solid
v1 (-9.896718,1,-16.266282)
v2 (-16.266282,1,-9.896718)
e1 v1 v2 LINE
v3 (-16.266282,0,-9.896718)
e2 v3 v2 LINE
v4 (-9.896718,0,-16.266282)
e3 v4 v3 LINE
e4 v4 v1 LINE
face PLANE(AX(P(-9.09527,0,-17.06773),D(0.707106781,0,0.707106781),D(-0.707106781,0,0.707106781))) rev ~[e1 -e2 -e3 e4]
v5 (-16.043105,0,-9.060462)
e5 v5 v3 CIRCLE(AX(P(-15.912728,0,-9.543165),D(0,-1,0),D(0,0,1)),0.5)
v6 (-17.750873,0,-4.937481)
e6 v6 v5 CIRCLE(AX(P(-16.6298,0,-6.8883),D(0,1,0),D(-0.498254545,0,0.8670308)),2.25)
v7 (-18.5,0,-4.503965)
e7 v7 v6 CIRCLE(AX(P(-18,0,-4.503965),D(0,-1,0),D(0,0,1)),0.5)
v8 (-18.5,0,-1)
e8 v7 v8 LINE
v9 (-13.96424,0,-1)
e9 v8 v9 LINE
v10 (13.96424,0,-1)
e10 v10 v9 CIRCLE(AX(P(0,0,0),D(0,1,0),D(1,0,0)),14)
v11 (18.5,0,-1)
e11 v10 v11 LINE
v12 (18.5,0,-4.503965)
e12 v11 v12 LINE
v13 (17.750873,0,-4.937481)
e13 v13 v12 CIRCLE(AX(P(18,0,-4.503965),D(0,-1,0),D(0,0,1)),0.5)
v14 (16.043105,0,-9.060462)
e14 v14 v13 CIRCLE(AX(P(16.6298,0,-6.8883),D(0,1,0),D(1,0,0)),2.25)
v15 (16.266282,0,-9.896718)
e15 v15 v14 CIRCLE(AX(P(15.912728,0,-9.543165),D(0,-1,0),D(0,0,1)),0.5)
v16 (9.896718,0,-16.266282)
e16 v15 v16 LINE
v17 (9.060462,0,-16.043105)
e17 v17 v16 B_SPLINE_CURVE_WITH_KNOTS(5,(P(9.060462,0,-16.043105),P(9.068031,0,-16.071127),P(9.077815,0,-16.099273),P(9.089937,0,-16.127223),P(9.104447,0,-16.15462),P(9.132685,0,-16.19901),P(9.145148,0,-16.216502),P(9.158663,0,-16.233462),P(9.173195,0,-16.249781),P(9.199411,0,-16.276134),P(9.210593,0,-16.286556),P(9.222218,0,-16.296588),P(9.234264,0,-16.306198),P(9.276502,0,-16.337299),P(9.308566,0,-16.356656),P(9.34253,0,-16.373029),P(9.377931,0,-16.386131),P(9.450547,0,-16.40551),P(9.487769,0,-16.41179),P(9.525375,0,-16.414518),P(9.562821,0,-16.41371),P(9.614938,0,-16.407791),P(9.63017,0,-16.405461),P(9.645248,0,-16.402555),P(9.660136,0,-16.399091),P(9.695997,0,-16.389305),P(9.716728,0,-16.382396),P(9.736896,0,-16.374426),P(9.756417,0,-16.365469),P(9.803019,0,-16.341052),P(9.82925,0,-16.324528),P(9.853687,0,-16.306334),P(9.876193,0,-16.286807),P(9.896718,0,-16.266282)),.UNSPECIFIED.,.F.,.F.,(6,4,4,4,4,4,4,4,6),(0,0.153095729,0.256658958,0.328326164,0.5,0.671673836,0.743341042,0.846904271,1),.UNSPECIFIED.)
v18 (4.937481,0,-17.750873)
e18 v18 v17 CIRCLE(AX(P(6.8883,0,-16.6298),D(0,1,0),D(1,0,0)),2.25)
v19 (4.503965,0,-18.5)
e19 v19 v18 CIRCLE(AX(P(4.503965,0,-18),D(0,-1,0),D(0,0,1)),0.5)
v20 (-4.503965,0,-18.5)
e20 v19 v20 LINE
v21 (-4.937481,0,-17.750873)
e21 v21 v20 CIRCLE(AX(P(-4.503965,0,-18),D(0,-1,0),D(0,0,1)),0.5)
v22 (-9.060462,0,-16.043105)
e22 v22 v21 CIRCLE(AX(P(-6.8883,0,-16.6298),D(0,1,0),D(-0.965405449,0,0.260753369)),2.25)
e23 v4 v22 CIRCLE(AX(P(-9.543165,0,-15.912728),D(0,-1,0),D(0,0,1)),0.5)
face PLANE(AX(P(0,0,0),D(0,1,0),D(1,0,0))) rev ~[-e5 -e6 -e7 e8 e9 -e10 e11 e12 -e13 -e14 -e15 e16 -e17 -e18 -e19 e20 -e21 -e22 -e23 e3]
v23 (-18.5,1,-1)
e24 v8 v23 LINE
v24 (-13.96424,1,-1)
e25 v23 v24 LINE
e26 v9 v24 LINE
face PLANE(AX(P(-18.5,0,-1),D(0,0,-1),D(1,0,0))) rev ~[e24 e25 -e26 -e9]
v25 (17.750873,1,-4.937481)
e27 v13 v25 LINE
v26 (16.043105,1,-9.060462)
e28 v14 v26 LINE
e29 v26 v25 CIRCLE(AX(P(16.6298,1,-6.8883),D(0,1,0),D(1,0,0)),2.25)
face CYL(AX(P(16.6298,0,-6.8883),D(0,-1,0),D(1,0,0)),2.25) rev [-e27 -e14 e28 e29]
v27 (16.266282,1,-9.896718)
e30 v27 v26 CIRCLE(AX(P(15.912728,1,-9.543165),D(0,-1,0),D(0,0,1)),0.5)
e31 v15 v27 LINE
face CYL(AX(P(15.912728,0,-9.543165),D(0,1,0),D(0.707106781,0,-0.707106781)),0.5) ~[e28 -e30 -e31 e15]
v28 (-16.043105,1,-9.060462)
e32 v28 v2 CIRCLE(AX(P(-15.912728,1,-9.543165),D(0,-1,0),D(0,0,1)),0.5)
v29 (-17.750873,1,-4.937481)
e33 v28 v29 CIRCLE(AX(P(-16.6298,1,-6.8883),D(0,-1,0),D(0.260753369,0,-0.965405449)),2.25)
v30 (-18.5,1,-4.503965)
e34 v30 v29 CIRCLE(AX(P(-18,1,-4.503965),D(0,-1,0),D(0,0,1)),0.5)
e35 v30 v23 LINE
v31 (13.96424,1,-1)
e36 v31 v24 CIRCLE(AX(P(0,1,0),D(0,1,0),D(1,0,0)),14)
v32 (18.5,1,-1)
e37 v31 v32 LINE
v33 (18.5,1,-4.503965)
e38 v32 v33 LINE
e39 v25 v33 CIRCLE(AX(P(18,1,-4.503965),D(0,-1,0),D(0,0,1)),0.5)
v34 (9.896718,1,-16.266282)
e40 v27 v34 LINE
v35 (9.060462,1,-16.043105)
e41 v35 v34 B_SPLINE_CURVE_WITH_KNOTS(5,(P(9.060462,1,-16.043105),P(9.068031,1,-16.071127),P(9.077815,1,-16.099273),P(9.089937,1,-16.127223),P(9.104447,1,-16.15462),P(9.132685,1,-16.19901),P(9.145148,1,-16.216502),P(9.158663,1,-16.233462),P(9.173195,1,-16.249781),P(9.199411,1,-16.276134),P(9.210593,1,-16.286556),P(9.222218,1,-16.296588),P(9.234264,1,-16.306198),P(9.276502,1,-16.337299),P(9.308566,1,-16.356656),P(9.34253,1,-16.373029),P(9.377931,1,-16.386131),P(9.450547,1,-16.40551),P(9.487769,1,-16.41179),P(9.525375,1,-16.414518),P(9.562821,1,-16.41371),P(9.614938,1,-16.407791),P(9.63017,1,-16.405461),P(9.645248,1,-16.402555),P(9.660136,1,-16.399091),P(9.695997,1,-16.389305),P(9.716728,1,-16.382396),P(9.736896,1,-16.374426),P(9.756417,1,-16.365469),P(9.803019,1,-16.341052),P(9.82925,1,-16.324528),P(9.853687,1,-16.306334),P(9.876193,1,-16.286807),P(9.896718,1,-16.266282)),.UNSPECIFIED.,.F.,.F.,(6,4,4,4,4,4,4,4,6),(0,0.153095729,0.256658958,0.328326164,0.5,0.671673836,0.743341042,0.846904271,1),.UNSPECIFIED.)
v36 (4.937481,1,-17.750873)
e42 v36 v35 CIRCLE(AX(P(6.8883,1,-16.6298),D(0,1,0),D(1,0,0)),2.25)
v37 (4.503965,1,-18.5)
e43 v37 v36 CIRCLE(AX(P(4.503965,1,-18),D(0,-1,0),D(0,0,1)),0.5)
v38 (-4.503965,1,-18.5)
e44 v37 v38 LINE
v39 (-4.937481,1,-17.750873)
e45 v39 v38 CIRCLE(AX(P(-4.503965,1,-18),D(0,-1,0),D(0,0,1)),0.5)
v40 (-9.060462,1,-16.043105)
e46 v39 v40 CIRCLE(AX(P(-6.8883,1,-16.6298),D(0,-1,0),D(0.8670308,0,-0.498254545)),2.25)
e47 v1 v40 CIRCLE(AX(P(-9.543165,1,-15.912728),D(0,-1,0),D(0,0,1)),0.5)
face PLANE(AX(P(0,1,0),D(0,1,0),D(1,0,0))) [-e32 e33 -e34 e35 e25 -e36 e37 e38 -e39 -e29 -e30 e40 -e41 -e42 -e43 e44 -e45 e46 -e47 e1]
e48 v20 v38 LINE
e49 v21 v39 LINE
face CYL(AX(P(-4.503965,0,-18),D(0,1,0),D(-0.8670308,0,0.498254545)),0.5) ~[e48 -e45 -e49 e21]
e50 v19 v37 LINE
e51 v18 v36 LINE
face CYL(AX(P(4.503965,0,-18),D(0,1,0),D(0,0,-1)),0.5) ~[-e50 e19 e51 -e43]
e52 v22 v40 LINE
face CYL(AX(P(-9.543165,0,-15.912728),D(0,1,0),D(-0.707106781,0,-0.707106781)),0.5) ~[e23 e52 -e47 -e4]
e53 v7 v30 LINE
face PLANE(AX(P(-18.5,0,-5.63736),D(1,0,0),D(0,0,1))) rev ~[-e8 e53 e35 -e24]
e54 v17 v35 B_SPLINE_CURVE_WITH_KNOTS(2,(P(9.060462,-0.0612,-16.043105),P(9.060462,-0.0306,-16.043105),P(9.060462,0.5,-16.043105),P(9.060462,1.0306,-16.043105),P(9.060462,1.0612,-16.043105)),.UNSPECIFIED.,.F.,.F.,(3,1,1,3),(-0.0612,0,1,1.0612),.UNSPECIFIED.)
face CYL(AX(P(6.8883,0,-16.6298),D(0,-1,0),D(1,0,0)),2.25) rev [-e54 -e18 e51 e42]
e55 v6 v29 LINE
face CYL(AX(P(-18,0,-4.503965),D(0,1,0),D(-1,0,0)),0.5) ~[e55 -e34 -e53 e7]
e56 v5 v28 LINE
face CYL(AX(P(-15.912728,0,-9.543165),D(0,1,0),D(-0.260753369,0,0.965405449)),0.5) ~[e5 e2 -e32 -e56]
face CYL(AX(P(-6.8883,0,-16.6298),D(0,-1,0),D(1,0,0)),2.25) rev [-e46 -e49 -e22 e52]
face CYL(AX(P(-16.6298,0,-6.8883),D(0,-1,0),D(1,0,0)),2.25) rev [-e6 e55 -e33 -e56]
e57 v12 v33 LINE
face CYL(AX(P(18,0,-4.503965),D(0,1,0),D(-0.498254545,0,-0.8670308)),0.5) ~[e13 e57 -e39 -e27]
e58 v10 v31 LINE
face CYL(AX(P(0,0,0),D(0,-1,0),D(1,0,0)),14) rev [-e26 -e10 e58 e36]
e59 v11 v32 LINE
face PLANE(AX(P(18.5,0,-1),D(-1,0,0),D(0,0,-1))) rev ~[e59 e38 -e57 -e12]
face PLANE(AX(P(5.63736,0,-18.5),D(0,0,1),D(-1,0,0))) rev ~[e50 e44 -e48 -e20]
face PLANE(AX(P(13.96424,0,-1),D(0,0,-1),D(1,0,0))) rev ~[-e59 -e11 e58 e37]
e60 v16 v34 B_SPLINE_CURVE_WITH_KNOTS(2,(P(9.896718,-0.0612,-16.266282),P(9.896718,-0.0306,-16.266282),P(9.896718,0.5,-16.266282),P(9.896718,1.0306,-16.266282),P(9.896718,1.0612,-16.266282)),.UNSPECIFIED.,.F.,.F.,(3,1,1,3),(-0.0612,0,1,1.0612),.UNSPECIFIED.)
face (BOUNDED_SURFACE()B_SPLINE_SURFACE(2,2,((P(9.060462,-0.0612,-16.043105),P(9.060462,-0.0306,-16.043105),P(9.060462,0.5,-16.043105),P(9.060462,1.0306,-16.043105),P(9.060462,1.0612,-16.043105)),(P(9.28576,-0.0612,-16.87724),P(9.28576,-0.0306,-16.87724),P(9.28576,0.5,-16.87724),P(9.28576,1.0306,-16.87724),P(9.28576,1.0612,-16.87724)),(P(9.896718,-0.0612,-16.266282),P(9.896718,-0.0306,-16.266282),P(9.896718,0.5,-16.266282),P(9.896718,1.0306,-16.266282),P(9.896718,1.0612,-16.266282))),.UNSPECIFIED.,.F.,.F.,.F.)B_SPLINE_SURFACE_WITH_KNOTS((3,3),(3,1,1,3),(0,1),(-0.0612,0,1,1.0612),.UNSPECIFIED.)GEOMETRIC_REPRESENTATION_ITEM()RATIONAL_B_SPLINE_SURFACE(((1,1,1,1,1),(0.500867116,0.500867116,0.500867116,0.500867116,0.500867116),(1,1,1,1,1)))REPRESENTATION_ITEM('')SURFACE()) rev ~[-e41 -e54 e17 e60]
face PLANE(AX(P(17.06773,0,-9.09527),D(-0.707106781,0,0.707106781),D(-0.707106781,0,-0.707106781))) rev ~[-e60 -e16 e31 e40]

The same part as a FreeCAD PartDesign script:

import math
import FreeCAD as App
import Part
import Sketcher


def edges_at(feature, points):
    """Names of the edges that pass closest to the given points."""
    edges = feature.Shape.Edges
    near = lambda p: min(range(len(edges)), key=lambda i: edges[i].distToShape(Part.Vertex(*p))[0])
    return sorted({f"Edge{near(p) + 1}" for p in points})

doc = App.newDocument("Part")
body = doc.addObject("PartDesign::Body", "Body")

# Sketch on XZ plane
sketch1 = body.newObject("Sketcher::SketchObject", "Sketch")
sketch1.AttachmentSupport = (doc.getObject("XZ_Plane"), [""])
sketch1.MapMode = "FlatFace"
sketch1.addGeometry([
    Part.ArcOfCircle(Part.Circle(App.Vector(0, 0, 0), App.Vector(0, 0, 1), 14), math.radians(-176), math.radians(-4)),  # 0
    Part.LineSegment(App.Vector(14, -1, 0), App.Vector(18.5, -1, 0)),  # 1
    Part.LineSegment(App.Vector(18.5, -1, 0), App.Vector(18.5, -5.6, 0)),  # 2
    Part.ArcOfCircle(Part.Circle(App.Vector(16.6, -6.9, 0), App.Vector(0, 0, 1), 2.2), math.radians(34), math.radians(281)),  # 3
    Part.LineSegment(App.Vector(17.1, -9.1, 0), App.Vector(9.1, -17.1, 0)),  # 4
    Part.ArcOfCircle(Part.Circle(App.Vector(6.9, -16.6, 0), App.Vector(0, 0, 1), 2.2), math.radians(-11), math.radians(236)),  # 5
    Part.LineSegment(App.Vector(5.6, -18.5, 0), App.Vector(-5.6, -18.5, 0)),  # 6
    Part.ArcOfCircle(Part.Circle(App.Vector(-6.9, -16.6, 0), App.Vector(0, 0, 1), 2.2), math.radians(-56), math.radians(191)),  # 7
    Part.LineSegment(App.Vector(-9.1, -17.1, 0), App.Vector(-17.1, -9.1, 0)),  # 8
    Part.ArcOfCircle(Part.Circle(App.Vector(-16.6, -6.9, 0), App.Vector(0, 0, 1), 2.2), math.radians(-101), math.radians(146)),  # 9
    Part.LineSegment(App.Vector(-18.5, -5.6, 0), App.Vector(-18.5, -1, 0)),  # 10
    Part.LineSegment(App.Vector(-18.5, -1, 0), App.Vector(-14, -1, 0)),  # 11
], False)
sketch1.addConstraint([
    Sketcher.Constraint("Coincident", 0, 2, 1, 1),
    Sketcher.Constraint("Coincident", 1, 2, 2, 1),
    Sketcher.Constraint("Coincident", 2, 2, 3, 1),
    Sketcher.Constraint("Coincident", 3, 2, 4, 1),
    Sketcher.Constraint("Coincident", 4, 2, 5, 1),
    Sketcher.Constraint("Coincident", 5, 2, 6, 1),
    Sketcher.Constraint("Coincident", 6, 2, 7, 1),
    Sketcher.Constraint("Coincident", 7, 2, 8, 1),
    Sketcher.Constraint("Coincident", 8, 2, 9, 1),
    Sketcher.Constraint("Coincident", 9, 2, 10, 1),
    Sketcher.Constraint("Coincident", 10, 2, 11, 1),
    Sketcher.Constraint("Coincident", 11, 2, 0, 1),
    Sketcher.Constraint("Horizontal", 1),
    Sketcher.Constraint("Vertical", 2),
    Sketcher.Constraint("Horizontal", 6),
    Sketcher.Constraint("Vertical", 10),
    Sketcher.Constraint("Horizontal", 11),
    Sketcher.Constraint("Coincident", 0, 3, -1, 1),
    Sketcher.Constraint("Equal", 3, 5),
    Sketcher.Constraint("Equal", 5, 7),
    Sketcher.Constraint("Equal", 7, 9),
    Sketcher.Constraint("Symmetric", 5, 3, 7, 3, -2),
    Sketcher.Constraint("Symmetric", 3, 3, 9, 3, -2),
    Sketcher.Constraint("Symmetric", 1, 2, 10, 2, -2),
    Sketcher.Constraint("Perpendicular", 4, 8),
    Sketcher.Constraint("Horizontal", 4, 2, 7, 2),
    Sketcher.Constraint("Horizontal", 3, 2, 8, 2),
    Sketcher.Constraint("Radius", 0, 14.0),
    Sketcher.Constraint("Radius", 3, 2.25),
    Sketcher.Constraint("DistanceY", 0, 2, -1, 1, 1.0),
    Sketcher.Constraint("DistanceX", -1, 1, 1, 2, 18.5),
    Sketcher.Constraint("DistanceY", 5, 2, -1, 1, 18.5),
    Sketcher.Constraint("DistanceX", 6, 2, 6, 1, 11.2747),
    Sketcher.Constraint("DistanceY", 2, 2, 2, 1, 4.6374),
    Sketcher.Constraint("DistanceX", 7, 3, 3, 3, 23.518),
    Sketcher.Constraint("DistanceX", 5, 3, 0, 2, 7.076),
    Sketcher.Constraint("DistanceX", 3, 3, 3, 2, 0.438),
])
pad1 = body.newObject("PartDesign::Pad", "Pad")
pad1.Profile = sketch1
pad1.Length = 1
pad1.Reversed = True
doc.recompute()

fillet = body.newObject("PartDesign::Fillet", "Fillet")
fillet.Base = (pad1, edges_at(pad1, [
    (18.5, 0.5, -5.637),
    (17.068, 0.5, -9.095),
    (9.095, 0.5, -17.068),
    (5.637, 0.5, -18.5),
    (-5.637, 0.5, -18.5),
    (-9.095, 0.5, -17.068),
    (-17.068, 0.5, -9.095),
    (-18.5, 0.5, -5.637),
]))
fillet.Radius = 0.5

doc.recompute()
